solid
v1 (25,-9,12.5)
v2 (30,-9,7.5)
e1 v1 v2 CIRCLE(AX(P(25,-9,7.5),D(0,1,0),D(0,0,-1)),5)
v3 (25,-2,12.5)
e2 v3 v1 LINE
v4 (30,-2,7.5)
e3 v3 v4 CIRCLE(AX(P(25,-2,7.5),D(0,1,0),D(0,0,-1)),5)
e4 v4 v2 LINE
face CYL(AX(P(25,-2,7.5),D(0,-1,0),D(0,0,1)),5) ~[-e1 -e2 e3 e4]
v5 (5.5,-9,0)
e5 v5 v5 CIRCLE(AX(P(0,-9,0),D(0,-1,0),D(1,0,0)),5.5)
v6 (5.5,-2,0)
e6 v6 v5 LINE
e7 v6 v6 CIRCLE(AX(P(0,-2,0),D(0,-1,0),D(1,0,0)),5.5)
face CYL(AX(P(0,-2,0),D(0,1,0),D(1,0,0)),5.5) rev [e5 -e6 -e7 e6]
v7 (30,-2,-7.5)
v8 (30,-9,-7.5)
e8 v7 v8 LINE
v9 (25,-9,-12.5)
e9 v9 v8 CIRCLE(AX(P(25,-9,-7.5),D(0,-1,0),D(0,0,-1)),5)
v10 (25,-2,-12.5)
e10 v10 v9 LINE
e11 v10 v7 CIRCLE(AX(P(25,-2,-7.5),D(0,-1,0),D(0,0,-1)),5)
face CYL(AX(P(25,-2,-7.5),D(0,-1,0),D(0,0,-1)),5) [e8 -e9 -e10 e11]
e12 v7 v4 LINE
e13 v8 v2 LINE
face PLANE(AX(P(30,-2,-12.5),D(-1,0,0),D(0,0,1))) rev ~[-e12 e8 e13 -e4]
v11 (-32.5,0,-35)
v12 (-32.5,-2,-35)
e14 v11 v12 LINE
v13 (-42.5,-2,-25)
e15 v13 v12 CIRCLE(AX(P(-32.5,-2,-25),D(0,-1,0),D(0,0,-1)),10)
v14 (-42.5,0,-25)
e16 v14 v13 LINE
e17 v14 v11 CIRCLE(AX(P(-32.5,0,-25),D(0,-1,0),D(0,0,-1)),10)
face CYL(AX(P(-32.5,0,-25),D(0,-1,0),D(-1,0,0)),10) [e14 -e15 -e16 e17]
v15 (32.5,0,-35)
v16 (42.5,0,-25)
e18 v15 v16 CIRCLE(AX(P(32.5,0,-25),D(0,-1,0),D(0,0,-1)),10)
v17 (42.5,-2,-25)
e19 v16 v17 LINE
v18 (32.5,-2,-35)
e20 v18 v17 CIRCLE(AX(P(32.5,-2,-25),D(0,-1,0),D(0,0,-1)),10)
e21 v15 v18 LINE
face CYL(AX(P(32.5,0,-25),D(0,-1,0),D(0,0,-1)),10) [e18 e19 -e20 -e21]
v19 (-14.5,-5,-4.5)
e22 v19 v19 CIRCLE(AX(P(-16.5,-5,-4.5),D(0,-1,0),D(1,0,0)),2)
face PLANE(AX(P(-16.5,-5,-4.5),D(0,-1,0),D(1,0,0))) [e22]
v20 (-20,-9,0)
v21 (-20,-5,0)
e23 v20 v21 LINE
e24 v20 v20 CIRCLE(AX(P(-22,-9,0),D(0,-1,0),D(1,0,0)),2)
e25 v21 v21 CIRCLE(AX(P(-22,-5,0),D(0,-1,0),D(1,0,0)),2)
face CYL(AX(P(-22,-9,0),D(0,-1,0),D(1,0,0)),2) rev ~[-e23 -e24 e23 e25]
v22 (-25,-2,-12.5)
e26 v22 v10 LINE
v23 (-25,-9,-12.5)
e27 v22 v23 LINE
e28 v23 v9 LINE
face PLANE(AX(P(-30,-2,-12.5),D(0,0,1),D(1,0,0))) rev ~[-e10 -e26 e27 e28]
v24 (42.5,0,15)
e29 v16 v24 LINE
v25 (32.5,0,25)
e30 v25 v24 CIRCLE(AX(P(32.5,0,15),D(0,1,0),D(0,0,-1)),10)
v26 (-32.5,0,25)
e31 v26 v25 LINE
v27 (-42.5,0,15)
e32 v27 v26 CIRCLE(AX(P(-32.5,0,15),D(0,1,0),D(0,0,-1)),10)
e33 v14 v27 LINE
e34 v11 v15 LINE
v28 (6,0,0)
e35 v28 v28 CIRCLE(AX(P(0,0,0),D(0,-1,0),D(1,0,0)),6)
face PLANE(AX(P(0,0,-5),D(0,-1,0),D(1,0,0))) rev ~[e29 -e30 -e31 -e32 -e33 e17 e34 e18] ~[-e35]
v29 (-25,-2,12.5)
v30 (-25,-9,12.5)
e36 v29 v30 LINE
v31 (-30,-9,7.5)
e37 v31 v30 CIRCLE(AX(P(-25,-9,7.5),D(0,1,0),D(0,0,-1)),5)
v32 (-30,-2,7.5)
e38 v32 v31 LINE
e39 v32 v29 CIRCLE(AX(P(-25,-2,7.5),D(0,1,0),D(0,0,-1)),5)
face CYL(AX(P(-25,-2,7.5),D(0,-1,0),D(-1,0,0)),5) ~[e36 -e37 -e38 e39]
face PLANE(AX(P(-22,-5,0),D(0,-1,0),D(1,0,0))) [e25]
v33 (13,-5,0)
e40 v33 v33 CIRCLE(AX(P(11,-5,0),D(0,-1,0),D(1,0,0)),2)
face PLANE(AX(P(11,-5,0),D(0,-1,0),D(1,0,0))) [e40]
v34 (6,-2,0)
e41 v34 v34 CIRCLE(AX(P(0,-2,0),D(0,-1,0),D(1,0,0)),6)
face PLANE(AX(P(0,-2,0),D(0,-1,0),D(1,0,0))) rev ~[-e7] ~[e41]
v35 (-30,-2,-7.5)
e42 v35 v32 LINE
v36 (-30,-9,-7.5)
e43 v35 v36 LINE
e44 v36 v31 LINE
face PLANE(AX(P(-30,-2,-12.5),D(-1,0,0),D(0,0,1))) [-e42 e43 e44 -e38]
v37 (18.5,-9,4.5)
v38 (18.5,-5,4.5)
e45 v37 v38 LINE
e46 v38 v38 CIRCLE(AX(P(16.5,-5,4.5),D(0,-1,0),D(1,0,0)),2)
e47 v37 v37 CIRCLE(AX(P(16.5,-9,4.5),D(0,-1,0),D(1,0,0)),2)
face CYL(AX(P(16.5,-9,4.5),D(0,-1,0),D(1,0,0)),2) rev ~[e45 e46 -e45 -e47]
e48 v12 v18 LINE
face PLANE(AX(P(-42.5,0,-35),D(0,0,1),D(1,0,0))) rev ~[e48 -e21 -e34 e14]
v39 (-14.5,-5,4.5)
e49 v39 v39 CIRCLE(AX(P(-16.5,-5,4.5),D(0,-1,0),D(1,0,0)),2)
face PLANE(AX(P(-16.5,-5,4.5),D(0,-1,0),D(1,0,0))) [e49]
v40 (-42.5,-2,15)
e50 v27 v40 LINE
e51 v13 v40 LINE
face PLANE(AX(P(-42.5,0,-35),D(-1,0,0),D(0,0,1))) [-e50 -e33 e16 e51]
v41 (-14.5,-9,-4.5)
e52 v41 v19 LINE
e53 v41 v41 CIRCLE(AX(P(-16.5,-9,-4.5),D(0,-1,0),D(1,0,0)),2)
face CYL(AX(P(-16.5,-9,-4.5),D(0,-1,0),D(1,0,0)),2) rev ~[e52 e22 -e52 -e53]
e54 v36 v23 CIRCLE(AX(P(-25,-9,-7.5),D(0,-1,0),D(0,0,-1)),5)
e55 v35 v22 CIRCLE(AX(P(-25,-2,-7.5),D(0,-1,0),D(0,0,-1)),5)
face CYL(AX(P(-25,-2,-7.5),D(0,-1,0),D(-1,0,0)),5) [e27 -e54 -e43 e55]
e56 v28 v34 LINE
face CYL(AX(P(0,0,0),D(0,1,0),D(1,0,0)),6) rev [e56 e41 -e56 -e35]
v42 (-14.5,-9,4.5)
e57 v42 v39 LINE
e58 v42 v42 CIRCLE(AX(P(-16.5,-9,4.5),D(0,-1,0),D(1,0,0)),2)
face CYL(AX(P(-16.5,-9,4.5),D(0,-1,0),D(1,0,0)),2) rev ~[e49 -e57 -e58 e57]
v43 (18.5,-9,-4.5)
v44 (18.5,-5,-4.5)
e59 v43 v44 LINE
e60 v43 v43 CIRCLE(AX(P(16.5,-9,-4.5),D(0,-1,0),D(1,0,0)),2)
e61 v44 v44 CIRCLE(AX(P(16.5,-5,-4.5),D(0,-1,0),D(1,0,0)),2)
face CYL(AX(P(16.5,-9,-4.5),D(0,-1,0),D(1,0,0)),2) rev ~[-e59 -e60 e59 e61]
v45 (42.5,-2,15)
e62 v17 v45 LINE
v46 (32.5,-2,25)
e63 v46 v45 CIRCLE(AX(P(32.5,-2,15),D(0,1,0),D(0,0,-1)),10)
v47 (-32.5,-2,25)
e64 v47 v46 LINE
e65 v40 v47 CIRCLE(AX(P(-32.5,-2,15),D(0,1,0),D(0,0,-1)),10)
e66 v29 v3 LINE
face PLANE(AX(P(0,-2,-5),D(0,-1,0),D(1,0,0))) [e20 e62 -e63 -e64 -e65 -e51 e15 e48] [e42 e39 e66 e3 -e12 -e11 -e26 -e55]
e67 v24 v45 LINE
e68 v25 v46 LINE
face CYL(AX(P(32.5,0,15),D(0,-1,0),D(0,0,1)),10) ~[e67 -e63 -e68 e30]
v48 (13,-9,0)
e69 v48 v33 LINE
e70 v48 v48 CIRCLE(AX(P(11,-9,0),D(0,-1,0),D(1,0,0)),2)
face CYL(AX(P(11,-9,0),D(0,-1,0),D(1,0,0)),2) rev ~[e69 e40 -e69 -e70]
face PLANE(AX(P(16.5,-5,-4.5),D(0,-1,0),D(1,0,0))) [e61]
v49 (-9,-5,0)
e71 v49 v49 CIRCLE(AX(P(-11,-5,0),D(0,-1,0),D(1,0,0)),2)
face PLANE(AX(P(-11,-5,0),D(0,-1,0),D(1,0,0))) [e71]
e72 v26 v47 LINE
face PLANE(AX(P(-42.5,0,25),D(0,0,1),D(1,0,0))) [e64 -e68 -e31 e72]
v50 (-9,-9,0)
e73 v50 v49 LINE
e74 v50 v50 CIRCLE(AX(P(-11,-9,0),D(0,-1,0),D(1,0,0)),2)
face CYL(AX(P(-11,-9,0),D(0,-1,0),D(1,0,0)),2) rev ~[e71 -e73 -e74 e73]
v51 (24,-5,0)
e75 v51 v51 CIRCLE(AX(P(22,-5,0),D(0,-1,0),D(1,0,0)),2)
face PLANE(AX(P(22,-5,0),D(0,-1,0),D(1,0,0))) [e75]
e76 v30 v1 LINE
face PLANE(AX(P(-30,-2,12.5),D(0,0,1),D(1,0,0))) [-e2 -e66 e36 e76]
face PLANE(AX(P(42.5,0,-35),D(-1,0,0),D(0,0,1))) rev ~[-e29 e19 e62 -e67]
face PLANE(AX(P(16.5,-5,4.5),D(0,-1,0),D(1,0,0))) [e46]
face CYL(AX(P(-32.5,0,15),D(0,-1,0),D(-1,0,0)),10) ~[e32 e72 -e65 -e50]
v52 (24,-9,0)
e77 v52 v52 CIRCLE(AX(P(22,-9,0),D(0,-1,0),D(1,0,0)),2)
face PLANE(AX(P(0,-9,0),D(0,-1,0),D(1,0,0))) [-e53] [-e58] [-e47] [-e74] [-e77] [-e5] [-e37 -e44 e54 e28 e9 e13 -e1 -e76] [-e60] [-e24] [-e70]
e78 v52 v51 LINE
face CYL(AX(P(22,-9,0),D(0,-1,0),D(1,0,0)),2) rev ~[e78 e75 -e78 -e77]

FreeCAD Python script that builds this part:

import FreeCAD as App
import Part
import Sketcher
from FreeCAD import Vector


def edges_at(feature, points):
    """Names of the edges that pass closest to the given points."""
    edges = feature.Shape.Edges
    near = lambda p: min(range(len(edges)), key=lambda i: edges[i].distToShape(Part.Vertex(*p))[0])
    return sorted({f"Edge{near(p) + 1}" for p in points})

doc = App.newDocument("Part")
params = doc.addObject("Spreadsheet::Sheet", "Params")
for row, (alias, value) in enumerate([
    ("sketch1_diameter", "12 mm"),
    ("sketch1_width", "85 mm"),
    ("sketch1_height", "60 mm"),
    ("pad1_length", "2 mm"),
    ("sketch2_diameter", "11 mm"),
    ("sketch2_width", "60 mm"),
    ("sketch2_height", "25 mm"),
    ("pad2_length", "7 mm"),
    ("fillet_radius", "5 mm"),
    ("fillet2_radius", "10 mm"),
    ("sketch3_diameter", "4 mm"),
    ("pocket1_length", "4 mm"),
], start=1):
    params.set(f"A{row}", alias)
    params.set(f"B{row}", "=" + value)
    params.setAlias(f"B{row}", alias)

body = doc.addObject("PartDesign::Body", "Body")

sketch1 = doc.addObject("Sketcher::SketchObject", "Sketch")
body.addObject(sketch1)
sketch1.AttachmentSupport = (doc.XZ_Plane, [""])
sketch1.MapMode = "FlatFace"
sketch1.addGeometry(Part.LineSegment(Vector(-42, 25, 0), Vector(-42, -35, 0)), False)
sketch1.addGeometry(Part.LineSegment(Vector(-42, -35, 0), Vector(42, -35, 0)), False)
sketch1.addGeometry(Part.LineSegment(Vector(42, -35, 0), Vector(42, 25, 0)), False)
sketch1.addGeometry(Part.LineSegment(Vector(42, 25, 0), Vector(-42, 25, 0)), False)
sketch1.addGeometry(Part.Circle(Vector(0, 0, 0), Vector(0, 0, 1), 6), False)
sketch1.addConstraint(Sketcher.Constraint("Coincident", 0, 2, 1, 1))
sketch1.addConstraint(Sketcher.Constraint("Coincident", 1, 2, 2, 1))
sketch1.addConstraint(Sketcher.Constraint("Coincident", 2, 2, 3, 1))
sketch1.addConstraint(Sketcher.Constraint("Coincident", 3, 2, 0, 1))
sketch1.addConstraint(Sketcher.Constraint("Vertical", 0))
sketch1.addConstraint(Sketcher.Constraint("Horizontal", 1))
sketch1.addConstraint(Sketcher.Constraint("Vertical", 2))
sketch1.addConstraint(Sketcher.Constraint("Horizontal", 3))
sketch1.addConstraint(Sketcher.Constraint("Coincident", 4, 3, -1, 1))
sketch1.addConstraint(Sketcher.Constraint("Diameter", 4, 12.0))
sketch1.addConstraint(Sketcher.Constraint("DistanceX", 1, 1, 1, 2, 85.0))
sketch1.addConstraint(Sketcher.Constraint("DistanceY", 0, 2, 0, 1, 60.0))
sketch1.addConstraint(Sketcher.Constraint("DistanceY", 0, 2, -1, 1, 35.0))
sketch1.addConstraint(Sketcher.Constraint("DistanceX", 0, 2, -1, 1, 42.5))
sketch1.setExpression("Constraints[9]", "Params.sketch1_diameter")
sketch1.setExpression("Constraints[10]", "Params.sketch1_width")
sketch1.setExpression("Constraints[11]", "Params.sketch1_height")
pad1 = doc.addObject("PartDesign::Pad", "Pad")
body.addObject(pad1)
pad1.Profile = sketch1
pad1.setExpression("Length", "Params.pad1_length")

sketch2 = doc.addObject("Sketcher::SketchObject", "Sketch001")
body.addObject(sketch2)
sketch2.AttachmentSupport = (doc.XZ_Plane, [""])
sketch2.MapMode = "FlatFace"
sketch2.AttachmentOffset = App.Placement(Vector(0, 0, 2), App.Rotation())
sketch2.addGeometry(Part.LineSegment(Vector(-30, 12, 0), Vector(-30, -12, 0)), False)
sketch2.addGeometry(Part.LineSegment(Vector(-30, -12, 0), Vector(30, -12, 0)), False)
sketch2.addGeometry(Part.LineSegment(Vector(30, -12, 0), Vector(30, 12, 0)), False)
sketch2.addGeometry(Part.LineSegment(Vector(30, 12, 0), Vector(-30, 12, 0)), False)
sketch2.addGeometry(Part.Circle(Vector(0, 0, 0), Vector(0, 0, 1), 6), False)
sketch2.addConstraint(Sketcher.Constraint("Coincident", 0, 2, 1, 1))
sketch2.addConstraint(Sketcher.Constraint("Coincident", 1, 2, 2, 1))
sketch2.addConstraint(Sketcher.Constraint("Coincident", 2, 2, 3, 1))
sketch2.addConstraint(Sketcher.Constraint("Coincident", 3, 2, 0, 1))
sketch2.addConstraint(Sketcher.Constraint("Vertical", 0))
sketch2.addConstraint(Sketcher.Constraint("Horizontal", 1))
sketch2.addConstraint(Sketcher.Constraint("Vertical", 2))
sketch2.addConstraint(Sketcher.Constraint("Horizontal", 3))
sketch2.addConstraint(Sketcher.Constraint("Coincident", 4, 3, -1, 1))
sketch2.addConstraint(Sketcher.Constraint("Symmetric", 0, 2, 2, 2, -1, 1))
sketch2.addConstraint(Sketcher.Constraint("Diameter", 4, 11.0))
sketch2.addConstraint(Sketcher.Constraint("DistanceX", 1, 1, 1, 2, 60.0))
sketch2.addConstraint(Sketcher.Constraint("DistanceY", 0, 2, 0, 1, 25.0))
sketch2.setExpression("Constraints[10]", "Params.sketch2_diameter")
sketch2.setExpression("Constraints[11]", "Params.sketch2_width")
sketch2.setExpression("Constraints[12]", "Params.sketch2_height")
pad2 = doc.addObject("PartDesign::Pad", "Pad001")
body.addObject(pad2)
pad2.Profile = sketch2
pad2.setExpression("Length", "Params.pad2_length")
doc.recompute()

fillet = doc.addObject("PartDesign::Fillet", "Fillet")
body.addObject(fillet)
fillet.Base = (pad2, edges_at(pad2, [
    (30, -5.5, 12.5),
    (30, -5.5, -12.5),
    (-30, -5.5, -12.5),
    (-30, -5.5, 12.5),
]))
fillet.setExpression("Radius", "Params.fillet_radius")
doc.recompute()

fillet2 = doc.addObject("PartDesign::Fillet", "Fillet001")
body.addObject(fillet2)
fillet2.Base = (fillet, edges_at(fillet, [
    (42.5, -1, 25),
    (42.5, -1, -35),
    (-42.5, -1, -35),
    (-42.5, -1, 25),
]))
fillet2.setExpression("Radius", "Params.fillet2_radius")

sketch3 = doc.addObject("Sketcher::SketchObject", "Sketch002")
body.addObject(sketch3)
sketch3.AttachmentSupport = (doc.XZ_Plane, [""])
sketch3.MapMode = "FlatFace"
sketch3.AttachmentOffset = App.Placement(Vector(0, 0, 9), App.Rotation())
sketch3.addGeometry(Part.Circle(Vector(-11, 0, 0), Vector(0, 0, 1), 2), False)
sketch3.addGeometry(Part.Circle(Vector(-22, 0, 0), Vector(0, 0, 1), 2), False)
sketch3.addGeometry(Part.Circle(Vector(11, 0, 0), Vector(0, 0, 1), 2), False)
sketch3.addGeometry(Part.Circle(Vector(22, 0, 0), Vector(0, 0, 1), 2), False)
sketch3.addGeometry(Part.Circle(Vector(-16.5, -4.5, 0), Vector(0, 0, 1), 2), False)
sketch3.addGeometry(Part.Circle(Vector(16.5, -4.5, 0), Vector(0, 0, 1), 2), False)
sketch3.addGeometry(Part.Circle(Vector(16.5, 4.5, 0), Vector(0, 0, 1), 2), False)
sketch3.addGeometry(Part.Circle(Vector(-16.5, 4.5, 0), Vector(0, 0, 1), 2), False)
sketch3.addConstraint(Sketcher.Constraint("Equal", 0, 1))
sketch3.addConstraint(Sketcher.Constraint("Equal", 1, 2))
sketch3.addConstraint(Sketcher.Constraint("Equal", 2, 3))
sketch3.addConstraint(Sketcher.Constraint("Equal", 3, 4))
sketch3.addConstraint(Sketcher.Constraint("Equal", 4, 5))
sketch3.addConstraint(Sketcher.Constraint("Equal", 5, 6))
sketch3.addConstraint(Sketcher.Constraint("Equal", 6, 7))
sketch3.addConstraint(Sketcher.Constraint("Symmetric", 0, 3, 2, 3, -1, 1))
sketch3.addConstraint(Sketcher.Constraint("Symmetric", 1, 3, 3, 3, -1, 1))
sketch3.addConstraint(Sketcher.Constraint("Symmetric", 4, 3, 6, 3, -1, 1))
sketch3.addConstraint(Sketcher.Constraint("Symmetric", 5, 3, 7, 3, -1, 1))
sketch3.addConstraint(Sketcher.Constraint("Symmetric", 4, 3, 5, 3, -2))
sketch3.addConstraint(Sketcher.Constraint("PointOnObject", 0, 3, -1))
sketch3.addConstraint(Sketcher.Constraint("PointOnObject", 1, 3, -1))
sketch3.addConstraint(Sketcher.Constraint("Diameter", 0, 4.0))
sketch3.addConstraint(Sketcher.Constraint("DistanceX", 0, 3, -1, 1, 11.0))
sketch3.addConstraint(Sketcher.Constraint("DistanceX", 1, 3, -1, 1, 22.0))
sketch3.addConstraint(Sketcher.Constraint("DistanceX", 4, 3, 5, 3, 33.0))
sketch3.addConstraint(Sketcher.Constraint("DistanceY", 5, 3, 6, 3, 9.0))
sketch3.setExpression("Constraints[14]", "Params.sketch3_diameter")
pocket1 = doc.addObject("PartDesign::Pocket", "Pocket")
body.addObject(pocket1)
pocket1.Profile = sketch3
pocket1.setExpression("Length", "Params.pocket1_length")

doc.recompute()
